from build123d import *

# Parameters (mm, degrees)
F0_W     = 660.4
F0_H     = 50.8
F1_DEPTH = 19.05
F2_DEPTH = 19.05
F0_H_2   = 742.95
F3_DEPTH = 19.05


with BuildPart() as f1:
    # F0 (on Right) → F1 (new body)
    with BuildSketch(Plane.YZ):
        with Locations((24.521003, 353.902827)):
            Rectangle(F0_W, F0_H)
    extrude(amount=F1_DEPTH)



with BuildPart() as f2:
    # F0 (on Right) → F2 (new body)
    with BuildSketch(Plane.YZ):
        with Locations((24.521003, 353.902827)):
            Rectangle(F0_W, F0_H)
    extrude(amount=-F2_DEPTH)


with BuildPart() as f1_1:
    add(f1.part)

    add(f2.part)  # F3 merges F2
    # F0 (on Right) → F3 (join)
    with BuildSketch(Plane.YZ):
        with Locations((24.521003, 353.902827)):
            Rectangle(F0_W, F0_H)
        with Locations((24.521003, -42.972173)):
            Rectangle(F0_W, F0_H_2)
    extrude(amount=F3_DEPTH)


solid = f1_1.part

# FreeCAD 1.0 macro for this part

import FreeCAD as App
import Part
import Sketcher

V = App.Vector
Q = App.Units.Quantity


def add_polygon(sketch, points):
    """Adds a closed chain of lines whose ends are joined by coincident constraints."""
    first, n = sketch.GeometryCount, len(points)
    for a, b in zip(points, points[1:] + points[:1]):
        sketch.addGeometry(Part.LineSegment(App.Vector(*a, 0), App.Vector(*b, 0)), False)
    for i in range(n):
        sketch.addConstraint(Sketcher.Constraint("Coincident", first + i, 2, first + (i + 1) % n, 1))

doc = App.newDocument("Part")
body = doc.addObject("PartDesign::Body", "Body")

# Sketch on YZ plane
sketch1 = body.newObject("Sketcher::SketchObject", "Sketch")
sketch1.AttachmentSupport = (doc.getObject("YZ_Plane"), [""])
sketch1.MapMode = "FlatFace"
add_polygon(sketch1, [(-306, 379), (-306, 329), (355, 329), (355, 379)])  # lines 0-3
sketch1.addConstraint([
    Sketcher.Constraint("Vertical", 0),
    Sketcher.Constraint("Horizontal", 1),
    Sketcher.Constraint("Vertical", 2),
    Sketcher.Constraint("Horizontal", 3),
    Sketcher.Constraint("DistanceX", 1, 1, 1, 2, Q("26 in")),
    Sketcher.Constraint("DistanceY", 0, 2, 0, 1, Q("2 in")),
    Sketcher.Constraint("DistanceX", 0, 2, -1, 1, Q("305.678997 mm")),
    Sketcher.Constraint("DistanceY", -1, 1, 0, 2, Q("328.502827 mm")),
])
pad1 = body.newObject("PartDesign::Pad", "Pad")
pad1.Profile = sketch1
pad1.Length = Q("0.75 in")
body2 = doc.addObject("PartDesign::Body", "Body001")

# Sketch on YZ plane
sketch2 = body2.newObject("Sketcher::SketchObject", "Sketch001")
sketch2.AttachmentSupport = (doc.getObject("YZ_Plane001"), [""])
sketch2.MapMode = "FlatFace"
add_polygon(sketch2, [(-306, 379), (-306, 329), (355, 329), (355, 379)])  # lines 0-3
sketch2.addConstraint([
    Sketcher.Constraint("Vertical", 0),
    Sketcher.Constraint("Horizontal", 1),
    Sketcher.Constraint("Vertical", 2),
    Sketcher.Constraint("Horizontal", 3),
    Sketcher.Constraint("DistanceX", 1, 1, 1, 2, Q("26 in")),
    Sketcher.Constraint("DistanceY", 0, 2, 0, 1, Q("2 in")),
    Sketcher.Constraint("DistanceX", 0, 2, -1, 1, Q("305.678997 mm")),
    Sketcher.Constraint("DistanceY", -1, 1, 0, 2, Q("328.502827 mm")),
])
pad2 = body2.newObject("PartDesign::Pad", "Pad001")
pad2.Profile = sketch2
pad2.Length = Q("0.75 in")
pad2.Reversed = True
doc.recompute()

boolean = body.newObject("PartDesign::Boolean", "Boolean")
boolean.Type = "Fuse"
boolean.addObjects([body2])

# Sketch on YZ plane
sketch3 = body.newObject("Sketcher::SketchObject", "Sketch002")
sketch3.AttachmentSupport = (doc.getObject("YZ_Plane"), [""])
sketch3.MapMode = "FlatFace"
add_polygon(sketch3, [(-306, 379), (-306, -414), (355, -414), (355, 379)])  # lines 0-3
sketch3.addConstraint([
    Sketcher.Constraint("Vertical", 0),
    Sketcher.Constraint("Horizontal", 1),
    Sketcher.Constraint("Vertical", 2),
    Sketcher.Constraint("Horizontal", 3),
    Sketcher.Constraint("DistanceX", 1, 1, 1, 2, Q("26 in")),
    Sketcher.Constraint("DistanceY", 0, 2, 0, 1, Q("31.25 in")),
    Sketcher.Constraint("DistanceX", 0, 2, -1, 1, Q("305.678997 mm")),
    Sketcher.Constraint("DistanceY", 0, 2, -1, 1, Q("414.447173 mm")),
])
pad3 = body.newObject("PartDesign::Pad", "Pad002")
pad3.Profile = sketch3
pad3.Length = Q("0.75 in")

doc.recompute()
